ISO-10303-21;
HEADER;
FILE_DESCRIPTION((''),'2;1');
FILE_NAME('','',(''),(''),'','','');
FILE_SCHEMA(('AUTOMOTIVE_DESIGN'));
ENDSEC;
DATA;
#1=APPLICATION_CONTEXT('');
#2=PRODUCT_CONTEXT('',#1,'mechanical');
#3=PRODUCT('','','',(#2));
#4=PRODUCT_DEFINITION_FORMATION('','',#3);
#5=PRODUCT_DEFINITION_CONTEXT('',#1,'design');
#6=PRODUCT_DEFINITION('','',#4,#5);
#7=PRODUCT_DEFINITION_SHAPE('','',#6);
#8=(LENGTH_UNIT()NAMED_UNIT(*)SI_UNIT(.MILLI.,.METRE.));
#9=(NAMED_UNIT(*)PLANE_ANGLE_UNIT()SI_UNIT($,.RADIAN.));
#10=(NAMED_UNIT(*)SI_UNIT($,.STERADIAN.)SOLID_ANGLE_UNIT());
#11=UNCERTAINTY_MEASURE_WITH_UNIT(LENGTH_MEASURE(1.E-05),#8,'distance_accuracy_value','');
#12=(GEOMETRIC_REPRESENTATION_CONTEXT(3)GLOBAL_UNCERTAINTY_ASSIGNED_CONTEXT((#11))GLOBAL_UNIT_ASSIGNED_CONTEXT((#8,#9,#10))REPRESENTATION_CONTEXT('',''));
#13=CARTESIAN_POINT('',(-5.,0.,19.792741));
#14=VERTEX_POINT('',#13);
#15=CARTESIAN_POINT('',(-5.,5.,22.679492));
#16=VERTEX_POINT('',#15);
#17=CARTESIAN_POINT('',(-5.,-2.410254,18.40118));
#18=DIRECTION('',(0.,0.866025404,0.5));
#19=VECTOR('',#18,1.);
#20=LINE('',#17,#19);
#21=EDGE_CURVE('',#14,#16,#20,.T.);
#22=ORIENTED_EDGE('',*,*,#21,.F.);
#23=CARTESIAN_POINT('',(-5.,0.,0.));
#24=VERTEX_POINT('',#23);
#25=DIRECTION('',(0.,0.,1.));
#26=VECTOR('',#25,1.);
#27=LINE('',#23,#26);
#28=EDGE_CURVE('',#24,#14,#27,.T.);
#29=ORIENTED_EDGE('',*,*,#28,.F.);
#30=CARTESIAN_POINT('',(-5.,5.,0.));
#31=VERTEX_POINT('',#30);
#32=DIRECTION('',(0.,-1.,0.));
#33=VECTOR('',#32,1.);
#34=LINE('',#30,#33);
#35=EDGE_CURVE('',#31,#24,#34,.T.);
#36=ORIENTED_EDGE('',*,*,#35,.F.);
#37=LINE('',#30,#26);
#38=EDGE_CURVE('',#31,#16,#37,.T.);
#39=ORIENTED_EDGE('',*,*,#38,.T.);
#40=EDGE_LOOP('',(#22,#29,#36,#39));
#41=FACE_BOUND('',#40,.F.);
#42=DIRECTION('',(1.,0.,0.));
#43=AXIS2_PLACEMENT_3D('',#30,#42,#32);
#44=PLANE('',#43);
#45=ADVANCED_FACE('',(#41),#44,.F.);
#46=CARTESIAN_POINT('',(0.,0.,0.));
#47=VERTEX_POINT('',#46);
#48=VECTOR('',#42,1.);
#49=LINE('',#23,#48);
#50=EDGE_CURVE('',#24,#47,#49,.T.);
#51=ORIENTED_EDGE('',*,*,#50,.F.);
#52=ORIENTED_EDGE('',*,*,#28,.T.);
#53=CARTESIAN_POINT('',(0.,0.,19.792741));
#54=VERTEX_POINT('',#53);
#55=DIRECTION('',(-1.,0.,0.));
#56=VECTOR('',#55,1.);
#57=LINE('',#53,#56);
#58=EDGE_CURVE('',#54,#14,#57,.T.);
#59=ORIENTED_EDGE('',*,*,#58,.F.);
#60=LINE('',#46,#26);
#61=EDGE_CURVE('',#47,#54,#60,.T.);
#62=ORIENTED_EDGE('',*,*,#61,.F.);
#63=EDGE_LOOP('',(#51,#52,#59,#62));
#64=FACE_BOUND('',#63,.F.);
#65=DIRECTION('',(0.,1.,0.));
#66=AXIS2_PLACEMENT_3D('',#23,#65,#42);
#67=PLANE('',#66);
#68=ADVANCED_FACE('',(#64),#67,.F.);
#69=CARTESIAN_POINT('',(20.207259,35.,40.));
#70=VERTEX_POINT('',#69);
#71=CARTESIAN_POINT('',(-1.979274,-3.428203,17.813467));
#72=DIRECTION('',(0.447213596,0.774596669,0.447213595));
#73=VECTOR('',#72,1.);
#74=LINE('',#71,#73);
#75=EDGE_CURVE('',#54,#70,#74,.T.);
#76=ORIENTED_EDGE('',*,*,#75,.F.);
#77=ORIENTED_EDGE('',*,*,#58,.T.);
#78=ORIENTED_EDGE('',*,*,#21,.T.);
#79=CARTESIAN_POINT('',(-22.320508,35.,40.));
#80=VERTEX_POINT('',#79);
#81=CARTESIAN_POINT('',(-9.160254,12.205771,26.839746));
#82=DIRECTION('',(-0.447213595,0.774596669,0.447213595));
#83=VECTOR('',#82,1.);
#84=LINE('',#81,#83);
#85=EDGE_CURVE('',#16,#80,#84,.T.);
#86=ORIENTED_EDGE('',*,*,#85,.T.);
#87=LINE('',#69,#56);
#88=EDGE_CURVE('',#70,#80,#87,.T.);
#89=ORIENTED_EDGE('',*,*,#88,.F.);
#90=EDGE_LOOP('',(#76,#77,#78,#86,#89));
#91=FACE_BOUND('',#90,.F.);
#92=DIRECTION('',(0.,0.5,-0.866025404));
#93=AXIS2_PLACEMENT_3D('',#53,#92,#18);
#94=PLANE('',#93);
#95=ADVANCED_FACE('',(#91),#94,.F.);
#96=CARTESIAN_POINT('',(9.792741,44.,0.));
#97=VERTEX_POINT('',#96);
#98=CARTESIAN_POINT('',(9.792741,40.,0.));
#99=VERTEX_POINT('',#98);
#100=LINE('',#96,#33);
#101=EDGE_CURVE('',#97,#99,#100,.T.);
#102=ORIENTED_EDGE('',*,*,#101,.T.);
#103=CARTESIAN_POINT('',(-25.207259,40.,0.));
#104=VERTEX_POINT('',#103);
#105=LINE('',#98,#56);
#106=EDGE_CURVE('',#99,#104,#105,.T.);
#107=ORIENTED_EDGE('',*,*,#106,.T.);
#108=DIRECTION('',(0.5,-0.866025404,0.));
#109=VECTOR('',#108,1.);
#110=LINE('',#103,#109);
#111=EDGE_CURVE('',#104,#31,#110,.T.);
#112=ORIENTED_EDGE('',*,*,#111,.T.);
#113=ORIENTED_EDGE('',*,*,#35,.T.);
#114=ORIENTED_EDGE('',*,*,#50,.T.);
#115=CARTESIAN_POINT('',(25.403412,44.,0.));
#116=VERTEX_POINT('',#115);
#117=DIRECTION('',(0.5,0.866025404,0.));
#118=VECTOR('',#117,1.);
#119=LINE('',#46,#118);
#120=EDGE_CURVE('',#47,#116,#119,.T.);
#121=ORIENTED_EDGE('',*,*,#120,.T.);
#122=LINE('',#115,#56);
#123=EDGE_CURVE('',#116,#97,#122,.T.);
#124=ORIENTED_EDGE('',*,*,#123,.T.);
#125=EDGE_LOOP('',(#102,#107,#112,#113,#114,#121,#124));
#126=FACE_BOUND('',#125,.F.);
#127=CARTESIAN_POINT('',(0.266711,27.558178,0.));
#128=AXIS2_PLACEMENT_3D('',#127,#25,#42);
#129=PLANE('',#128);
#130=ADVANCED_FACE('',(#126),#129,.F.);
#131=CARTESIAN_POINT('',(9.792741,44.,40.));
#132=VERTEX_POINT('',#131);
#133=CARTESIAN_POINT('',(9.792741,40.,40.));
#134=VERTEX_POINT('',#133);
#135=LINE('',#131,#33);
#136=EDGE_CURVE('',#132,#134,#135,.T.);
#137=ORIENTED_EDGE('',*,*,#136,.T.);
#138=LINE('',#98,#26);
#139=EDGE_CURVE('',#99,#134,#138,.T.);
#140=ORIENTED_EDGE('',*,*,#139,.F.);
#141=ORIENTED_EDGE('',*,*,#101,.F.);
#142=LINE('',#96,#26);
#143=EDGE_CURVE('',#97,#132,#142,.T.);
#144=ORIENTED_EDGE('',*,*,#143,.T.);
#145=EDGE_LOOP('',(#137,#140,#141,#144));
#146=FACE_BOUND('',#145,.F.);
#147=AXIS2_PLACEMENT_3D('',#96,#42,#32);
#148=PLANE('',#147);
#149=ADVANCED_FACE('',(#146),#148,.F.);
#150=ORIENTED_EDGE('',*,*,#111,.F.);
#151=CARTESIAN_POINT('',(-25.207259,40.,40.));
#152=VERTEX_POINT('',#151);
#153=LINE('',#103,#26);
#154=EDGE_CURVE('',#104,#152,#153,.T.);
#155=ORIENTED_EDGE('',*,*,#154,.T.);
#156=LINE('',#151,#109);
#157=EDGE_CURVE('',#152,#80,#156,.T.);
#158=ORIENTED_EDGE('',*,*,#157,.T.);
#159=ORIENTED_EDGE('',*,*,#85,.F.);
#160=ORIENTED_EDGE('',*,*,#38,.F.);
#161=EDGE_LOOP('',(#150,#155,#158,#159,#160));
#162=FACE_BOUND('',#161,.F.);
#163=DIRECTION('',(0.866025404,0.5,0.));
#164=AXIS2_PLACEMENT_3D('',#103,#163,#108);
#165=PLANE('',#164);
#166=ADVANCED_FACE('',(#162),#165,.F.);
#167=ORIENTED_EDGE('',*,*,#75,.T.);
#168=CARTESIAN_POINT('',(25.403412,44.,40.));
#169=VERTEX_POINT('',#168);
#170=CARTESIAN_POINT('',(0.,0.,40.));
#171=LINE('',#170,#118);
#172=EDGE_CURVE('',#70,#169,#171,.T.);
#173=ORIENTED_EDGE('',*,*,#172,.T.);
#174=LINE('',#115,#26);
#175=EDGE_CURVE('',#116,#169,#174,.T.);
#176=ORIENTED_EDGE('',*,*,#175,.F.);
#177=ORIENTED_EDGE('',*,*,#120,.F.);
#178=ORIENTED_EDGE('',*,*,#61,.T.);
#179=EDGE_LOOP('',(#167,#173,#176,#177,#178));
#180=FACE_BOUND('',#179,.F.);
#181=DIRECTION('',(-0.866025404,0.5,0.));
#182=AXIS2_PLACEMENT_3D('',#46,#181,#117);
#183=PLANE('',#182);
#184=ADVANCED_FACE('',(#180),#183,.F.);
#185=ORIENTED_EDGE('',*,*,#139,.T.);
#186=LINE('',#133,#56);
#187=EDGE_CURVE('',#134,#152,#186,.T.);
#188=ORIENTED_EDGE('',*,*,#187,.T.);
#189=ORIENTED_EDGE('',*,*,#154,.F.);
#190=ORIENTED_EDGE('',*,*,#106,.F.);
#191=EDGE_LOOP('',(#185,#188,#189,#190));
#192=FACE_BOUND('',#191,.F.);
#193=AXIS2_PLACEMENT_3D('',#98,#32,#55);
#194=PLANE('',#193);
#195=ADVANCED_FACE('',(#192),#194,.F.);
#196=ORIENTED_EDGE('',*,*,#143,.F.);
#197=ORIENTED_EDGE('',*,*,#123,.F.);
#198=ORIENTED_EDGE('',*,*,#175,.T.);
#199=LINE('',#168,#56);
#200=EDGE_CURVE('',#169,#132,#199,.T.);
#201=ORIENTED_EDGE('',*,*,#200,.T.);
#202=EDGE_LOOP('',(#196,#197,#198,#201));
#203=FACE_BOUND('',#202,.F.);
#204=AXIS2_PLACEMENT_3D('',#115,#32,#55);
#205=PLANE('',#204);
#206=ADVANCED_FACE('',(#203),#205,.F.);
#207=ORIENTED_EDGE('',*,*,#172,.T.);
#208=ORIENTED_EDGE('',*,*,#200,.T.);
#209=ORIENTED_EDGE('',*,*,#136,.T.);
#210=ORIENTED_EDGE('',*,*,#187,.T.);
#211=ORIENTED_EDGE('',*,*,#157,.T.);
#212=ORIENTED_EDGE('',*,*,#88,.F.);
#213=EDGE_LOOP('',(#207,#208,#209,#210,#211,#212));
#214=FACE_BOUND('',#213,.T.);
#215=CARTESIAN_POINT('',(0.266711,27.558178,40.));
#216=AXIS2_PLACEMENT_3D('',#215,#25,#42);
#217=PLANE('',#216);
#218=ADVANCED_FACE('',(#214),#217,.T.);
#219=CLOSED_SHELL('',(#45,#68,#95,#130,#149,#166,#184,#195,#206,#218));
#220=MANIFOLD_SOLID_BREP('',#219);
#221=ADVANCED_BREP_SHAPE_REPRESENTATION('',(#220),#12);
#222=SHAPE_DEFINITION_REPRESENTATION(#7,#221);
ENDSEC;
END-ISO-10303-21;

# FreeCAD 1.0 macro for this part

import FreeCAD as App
import Part
import Sketcher

V = App.Vector
Q = App.Units.Quantity


def add_polygon(sketch, points):
    """Adds a closed chain of lines whose ends are joined by coincident constraints."""
    first, n = sketch.GeometryCount, len(points)
    for a, b in zip(points, points[1:] + points[:1]):
        sketch.addGeometry(Part.LineSegment(App.Vector(*a, 0), App.Vector(*b, 0)), False)
    for i in range(n):
        sketch.addConstraint(Sketcher.Constraint("Coincident", first + i, 2, first + (i + 1) % n, 1))

doc = App.newDocument("Part")
params = doc.addObject("Spreadsheet::Sheet", "Params")
for row, (alias, value) in enumerate([
    ("sketch1_width", "5 mm"),
    ("sketch1_width2", "35 mm"),
    ("sketch1_height", "4 mm"),
    ("pad1_length", "40 mm"),
    ("sketch2_width", "35 mm"),
], start=1):
    params.set(f"A{row}", alias)
    params.set(f"B{row}", "=" + value)
    params.setAlias(f"B{row}", alias)

body = doc.addObject("PartDesign::Body", "Body")

# Sketch on XY plane
sketch1 = body.newObject("Sketcher::SketchObject", "Sketch")
sketch1.AttachmentSupport = (doc.getObject("XY_Plane"), [""])
sketch1.MapMode = "FlatFace"
add_polygon(sketch1, [(-5, 0), (0, 0), (25.4, 44), (9.8, 44), (9.8, 40), (-25.2, 40), (-5, 5)])  # lines 0-6
sketch1.addConstraint(Sketcher.Constraint("Horizontal", 0))
sketch1.addConstraint(Sketcher.Constraint("Horizontal", 2))
sketch1.addConstraint(Sketcher.Constraint("Vertical", 3))
sketch1.addConstraint(Sketcher.Constraint("Horizontal", 4))
sketch1.addConstraint(Sketcher.Constraint("Vertical", 6))
sketch1.addConstraint(Sketcher.Constraint("Coincident", 0, 2, -1, 1))
sketch1.addConstraint(Sketcher.Constraint("Equal", 0, 6))
sketch1.addConstraint(Sketcher.Constraint("DistanceX", 0, 1, 0, 2, 5.0))
sketch1.addConstraint(Sketcher.Constraint("DistanceX", 4, 2, 4, 1, 35.0))
sketch1.addConstraint(Sketcher.Constraint("DistanceY", 3, 2, 3, 1, 4.0))
sketch1.addConstraint(Sketcher.Constraint("Angle", 1, Q("60 deg")))
sketch1.addConstraint(Sketcher.Constraint("Angle", 5, Q("-60 deg")))
sketch1.addConstraint(Sketcher.Constraint("DistanceY", -1, 1, 1, 2, 44.0))
sketch1.setExpression("Constraints[14]", "Params.sketch1_width")
sketch1.setExpression("Constraints[15]", "Params.sketch1_width2")
sketch1.setExpression("Constraints[16]", "Params.sketch1_height")
pad1 = body.newObject("PartDesign::Pad", "Pad")
pad1.Profile = sketch1
pad1.setExpression("Length", "Params.pad1_length")

# Sketch on YZ plane
sketch2 = body.newObject("Sketcher::SketchObject", "Sketch001")
sketch2.AttachmentSupport = (doc.getObject("YZ_Plane"), [""])
sketch2.MapMode = "FlatFace"
add_polygon(sketch2, [(35, 40), (0, 40), (0, 20)])  # lines 0-2
sketch2.addConstraint(Sketcher.Constraint("Horizontal", 0))
sketch2.addConstraint(Sketcher.Constraint("Vertical", 1))
sketch2.addConstraint(Sketcher.Constraint("PointOnObject", 0, 2, -2))
sketch2.addConstraint(Sketcher.Constraint("DistanceX", 0, 2, 0, 1, 35.0))
sketch2.addConstraint(Sketcher.Constraint("Angle", 2, Q("30 deg")))
sketch2.addConstraint(Sketcher.Constraint("DistanceY", -1, 1, 0, 2, 40.0))
sketch2.setExpression("Constraints[6]", "Params.sketch2_width")
pocket1 = body.newObject("PartDesign::Pocket", "Pocket")
pocket1.Profile = sketch2
pocket1.Type = "ThroughAll"
pocket1.Midplane = True

doc.recompute()
